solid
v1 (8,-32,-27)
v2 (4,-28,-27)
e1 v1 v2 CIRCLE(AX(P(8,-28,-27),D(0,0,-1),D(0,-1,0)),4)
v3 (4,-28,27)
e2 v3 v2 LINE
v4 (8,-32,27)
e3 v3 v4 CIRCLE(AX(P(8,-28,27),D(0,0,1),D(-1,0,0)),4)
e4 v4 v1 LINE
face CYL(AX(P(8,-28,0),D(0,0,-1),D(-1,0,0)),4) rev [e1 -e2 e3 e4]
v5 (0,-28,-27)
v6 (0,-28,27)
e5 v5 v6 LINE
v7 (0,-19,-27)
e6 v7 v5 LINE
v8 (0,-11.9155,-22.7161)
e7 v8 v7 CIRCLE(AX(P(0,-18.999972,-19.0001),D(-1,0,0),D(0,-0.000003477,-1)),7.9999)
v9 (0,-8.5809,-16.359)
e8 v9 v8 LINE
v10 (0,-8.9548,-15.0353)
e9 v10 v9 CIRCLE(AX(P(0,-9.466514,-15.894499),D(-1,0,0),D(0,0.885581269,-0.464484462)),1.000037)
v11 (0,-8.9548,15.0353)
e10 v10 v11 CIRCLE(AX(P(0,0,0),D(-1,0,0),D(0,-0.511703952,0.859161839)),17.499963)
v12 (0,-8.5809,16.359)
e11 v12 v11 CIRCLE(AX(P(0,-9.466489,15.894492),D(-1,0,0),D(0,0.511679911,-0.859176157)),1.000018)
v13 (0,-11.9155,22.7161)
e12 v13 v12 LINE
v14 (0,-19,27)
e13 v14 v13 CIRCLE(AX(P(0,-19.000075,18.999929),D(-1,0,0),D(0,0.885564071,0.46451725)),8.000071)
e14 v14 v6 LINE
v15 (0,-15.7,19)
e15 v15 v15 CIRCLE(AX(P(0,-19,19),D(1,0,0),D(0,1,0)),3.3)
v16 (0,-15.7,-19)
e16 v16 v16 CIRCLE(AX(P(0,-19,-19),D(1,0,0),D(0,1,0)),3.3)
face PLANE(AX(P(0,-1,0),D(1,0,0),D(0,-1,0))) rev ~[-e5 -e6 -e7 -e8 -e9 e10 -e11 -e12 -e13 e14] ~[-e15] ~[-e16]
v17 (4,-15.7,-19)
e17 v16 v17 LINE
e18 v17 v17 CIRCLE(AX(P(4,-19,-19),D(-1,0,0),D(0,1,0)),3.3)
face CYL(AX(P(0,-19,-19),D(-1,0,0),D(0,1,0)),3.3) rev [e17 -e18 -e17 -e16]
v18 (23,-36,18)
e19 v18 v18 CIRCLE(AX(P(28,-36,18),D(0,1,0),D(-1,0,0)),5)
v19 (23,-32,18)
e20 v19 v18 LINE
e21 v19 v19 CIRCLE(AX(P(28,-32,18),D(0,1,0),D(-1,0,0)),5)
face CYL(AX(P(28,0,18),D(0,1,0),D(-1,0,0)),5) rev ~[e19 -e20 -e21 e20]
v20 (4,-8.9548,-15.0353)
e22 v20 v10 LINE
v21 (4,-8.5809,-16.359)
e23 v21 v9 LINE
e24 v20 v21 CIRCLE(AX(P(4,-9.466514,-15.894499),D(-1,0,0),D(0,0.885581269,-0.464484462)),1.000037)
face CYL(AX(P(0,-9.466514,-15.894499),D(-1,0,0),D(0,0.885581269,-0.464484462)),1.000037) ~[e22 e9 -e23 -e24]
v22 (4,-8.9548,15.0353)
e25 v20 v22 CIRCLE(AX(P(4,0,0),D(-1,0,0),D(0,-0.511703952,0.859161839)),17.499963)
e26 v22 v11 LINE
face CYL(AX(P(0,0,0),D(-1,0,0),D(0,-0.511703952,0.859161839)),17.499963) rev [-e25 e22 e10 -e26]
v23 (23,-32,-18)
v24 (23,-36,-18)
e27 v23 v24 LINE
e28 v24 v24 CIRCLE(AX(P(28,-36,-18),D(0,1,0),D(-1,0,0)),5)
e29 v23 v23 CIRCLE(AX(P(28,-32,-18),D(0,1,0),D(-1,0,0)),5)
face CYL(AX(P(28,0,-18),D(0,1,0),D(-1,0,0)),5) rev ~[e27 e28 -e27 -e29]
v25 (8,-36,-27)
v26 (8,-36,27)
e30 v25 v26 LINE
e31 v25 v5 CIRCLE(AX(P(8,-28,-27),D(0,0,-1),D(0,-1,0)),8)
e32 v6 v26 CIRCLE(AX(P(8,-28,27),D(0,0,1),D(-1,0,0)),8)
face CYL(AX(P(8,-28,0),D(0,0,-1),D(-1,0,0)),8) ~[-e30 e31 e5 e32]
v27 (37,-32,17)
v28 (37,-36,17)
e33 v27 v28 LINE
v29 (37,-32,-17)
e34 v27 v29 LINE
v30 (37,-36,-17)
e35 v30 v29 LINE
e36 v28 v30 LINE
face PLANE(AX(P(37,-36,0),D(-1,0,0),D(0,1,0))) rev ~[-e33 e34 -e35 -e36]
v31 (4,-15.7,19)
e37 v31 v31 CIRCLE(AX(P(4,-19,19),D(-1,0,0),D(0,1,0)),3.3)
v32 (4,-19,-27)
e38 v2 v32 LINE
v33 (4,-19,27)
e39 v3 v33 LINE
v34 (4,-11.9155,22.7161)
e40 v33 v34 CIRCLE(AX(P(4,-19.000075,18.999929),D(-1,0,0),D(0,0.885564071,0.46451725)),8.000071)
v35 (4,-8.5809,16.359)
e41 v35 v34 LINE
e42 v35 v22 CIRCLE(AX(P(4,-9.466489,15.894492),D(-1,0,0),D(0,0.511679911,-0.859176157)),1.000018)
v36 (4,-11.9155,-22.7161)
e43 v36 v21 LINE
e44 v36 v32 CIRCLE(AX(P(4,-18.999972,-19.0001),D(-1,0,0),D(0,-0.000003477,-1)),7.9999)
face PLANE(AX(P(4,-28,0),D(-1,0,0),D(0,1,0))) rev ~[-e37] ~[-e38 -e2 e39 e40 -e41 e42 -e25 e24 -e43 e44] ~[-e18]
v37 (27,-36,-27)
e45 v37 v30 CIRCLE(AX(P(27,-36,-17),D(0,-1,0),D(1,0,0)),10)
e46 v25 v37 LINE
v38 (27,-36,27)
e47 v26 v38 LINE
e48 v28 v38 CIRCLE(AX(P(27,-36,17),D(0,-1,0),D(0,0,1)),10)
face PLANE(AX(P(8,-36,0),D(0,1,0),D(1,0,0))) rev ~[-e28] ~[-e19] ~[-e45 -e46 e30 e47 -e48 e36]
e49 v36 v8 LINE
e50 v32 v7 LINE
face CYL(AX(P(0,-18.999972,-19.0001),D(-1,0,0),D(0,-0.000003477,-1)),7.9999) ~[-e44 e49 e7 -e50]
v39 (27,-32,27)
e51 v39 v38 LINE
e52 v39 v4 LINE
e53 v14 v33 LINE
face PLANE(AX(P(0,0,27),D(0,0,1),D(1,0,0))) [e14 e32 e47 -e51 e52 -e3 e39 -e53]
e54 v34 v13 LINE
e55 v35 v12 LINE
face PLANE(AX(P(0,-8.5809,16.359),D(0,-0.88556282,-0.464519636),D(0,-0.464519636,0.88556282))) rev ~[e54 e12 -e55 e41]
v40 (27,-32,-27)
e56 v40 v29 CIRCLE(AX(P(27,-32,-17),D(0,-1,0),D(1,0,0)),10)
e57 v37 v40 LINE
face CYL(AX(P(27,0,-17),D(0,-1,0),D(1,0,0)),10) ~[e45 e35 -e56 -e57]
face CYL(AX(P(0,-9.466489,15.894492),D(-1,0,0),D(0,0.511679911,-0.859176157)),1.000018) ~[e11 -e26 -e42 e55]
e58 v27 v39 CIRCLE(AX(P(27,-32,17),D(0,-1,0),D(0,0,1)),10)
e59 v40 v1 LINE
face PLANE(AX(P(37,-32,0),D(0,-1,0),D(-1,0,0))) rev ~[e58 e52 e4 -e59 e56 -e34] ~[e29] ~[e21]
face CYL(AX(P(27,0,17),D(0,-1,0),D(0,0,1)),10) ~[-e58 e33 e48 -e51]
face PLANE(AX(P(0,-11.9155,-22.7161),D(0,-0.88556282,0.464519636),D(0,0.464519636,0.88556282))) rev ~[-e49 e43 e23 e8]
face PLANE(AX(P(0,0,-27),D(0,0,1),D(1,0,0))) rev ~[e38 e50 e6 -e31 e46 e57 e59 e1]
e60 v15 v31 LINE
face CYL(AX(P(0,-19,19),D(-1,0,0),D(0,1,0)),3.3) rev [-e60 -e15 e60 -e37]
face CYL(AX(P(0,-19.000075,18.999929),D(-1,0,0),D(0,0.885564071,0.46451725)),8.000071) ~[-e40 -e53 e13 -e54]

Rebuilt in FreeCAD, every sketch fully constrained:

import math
import FreeCAD as App
import Part
import Sketcher
from FreeCAD import Vector
Q = App.Units.Quantity

doc = App.newDocument("Part")
body = doc.addObject("PartDesign::Body", "Body")

# Sketch on XY plane
sketch1 = body.newObject("Sketcher::SketchObject", "Sketch")
sketch1.AttachmentSupport = (doc.getObject("XY_Plane"), [""])
sketch1.MapMode = "FlatFace"
sketch1.addGeometry(Part.LineSegment(Vector(4, -1, 0), Vector(0, -1, 0)), False)
sketch1.addGeometry(Part.LineSegment(Vector(0, -1, 0), Vector(0, -28, 0)), False)
sketch1.addGeometry(Part.ArcOfCircle(Part.Circle(Vector(8, -28, 0), Vector(0, 0, 1), 8), math.radians(180), math.radians(270)), False)
sketch1.addGeometry(Part.LineSegment(Vector(8, -36, 0), Vector(37, -36, 0)), False)
sketch1.addGeometry(Part.LineSegment(Vector(37, -36, 0), Vector(37, -32, 0)), False)
sketch1.addGeometry(Part.LineSegment(Vector(37, -32, 0), Vector(8, -32, 0)), False)
sketch1.addGeometry(Part.ArcOfCircle(Part.Circle(Vector(8, -28, 0), Vector(0, 0, 1), 4), math.radians(180), math.radians(270)), False)
sketch1.addGeometry(Part.LineSegment(Vector(4, -28, 0), Vector(4, -1, 0)), False)
sketch1.addConstraint(Sketcher.Constraint("Coincident", 0, 2, 1, 1))
sketch1.addConstraint(Sketcher.Constraint("Tangent", 1, 2, 2, 1))
sketch1.addConstraint(Sketcher.Constraint("Tangent", 2, 2, 3, 1))
sketch1.addConstraint(Sketcher.Constraint("Coincident", 3, 2, 4, 1))
sketch1.addConstraint(Sketcher.Constraint("Coincident", 4, 2, 5, 1))
sketch1.addConstraint(Sketcher.Constraint("Tangent", 5, 2, 6, 2))
sketch1.addConstraint(Sketcher.Constraint("Tangent", 6, 1, 7, 1))
sketch1.addConstraint(Sketcher.Constraint("Coincident", 7, 2, 0, 1))
sketch1.addConstraint(Sketcher.Constraint("Horizontal", 0))
sketch1.addConstraint(Sketcher.Constraint("Vertical", 1))
sketch1.addConstraint(Sketcher.Constraint("Horizontal", 3))
sketch1.addConstraint(Sketcher.Constraint("Vertical", 4))
sketch1.addConstraint(Sketcher.Constraint("Horizontal", 5))
sketch1.addConstraint(Sketcher.Constraint("Vertical", 7))
sketch1.addConstraint(Sketcher.Constraint("Coincident", 6, 3, 2, 3))
sketch1.addConstraint(Sketcher.Constraint("PointOnObject", 0, 2, -2))
sketch1.addConstraint(Sketcher.Constraint("Radius", 2, 8.0))
sketch1.addConstraint(Sketcher.Constraint("Radius", 6, 4.0))
sketch1.addConstraint(Sketcher.Constraint("DistanceX", 3, 1, 3, 2, 29.0))
sketch1.addConstraint(Sketcher.Constraint("DistanceY", 1, 2, 1, 1, 27.0))
sketch1.addConstraint(Sketcher.Constraint("DistanceY", 2, 3, -1, 1, 28.0))
pad1 = body.newObject("PartDesign::Pad", "Pad")
pad1.Profile = sketch1
pad1.Length = 54
pad1.Midplane = True

# Sketch on XZ plane
sketch2 = body.newObject("Sketcher::SketchObject", "Sketch001")
sketch2.AttachmentSupport = (doc.getObject("XZ_Plane"), [""])
sketch2.MapMode = "FlatFace"
sketch2.addGeometry(Part.LineSegment(Vector(47, -37, 0), Vector(27, -37, 0)), False)
sketch2.addGeometry(Part.LineSegment(Vector(27, -37, 0), Vector(27, -27, 0)), False)
sketch2.addGeometry(Part.ArcOfCircle(Part.Circle(Vector(27, -17, 0), Vector(0, 0, 1), 10), math.radians(-90), math.radians(0)), False)
sketch2.addGeometry(Part.LineSegment(Vector(37, -17, 0), Vector(37, 17, 0)), False)
sketch2.addGeometry(Part.ArcOfCircle(Part.Circle(Vector(27, 17, 0), Vector(0, 0, 1), 10), math.radians(0), math.radians(90)), False)
sketch2.addGeometry(Part.LineSegment(Vector(27, 27, 0), Vector(27, 37, 0)), False)
sketch2.addGeometry(Part.LineSegment(Vector(27, 37, 0), Vector(47, 37, 0)), False)
sketch2.addGeometry(Part.LineSegment(Vector(47, 37, 0), Vector(47, -37, 0)), False)
sketch2.addConstraint(Sketcher.Constraint("Coincident", 0, 2, 1, 1))
sketch2.addConstraint(Sketcher.Constraint("Coincident", 1, 2, 2, 1))
sketch2.addConstraint(Sketcher.Constraint("Tangent", 2, 2, 3, 1))
sketch2.addConstraint(Sketcher.Constraint("Tangent", 3, 2, 4, 1))
sketch2.addConstraint(Sketcher.Constraint("Coincident", 4, 2, 5, 1))
sketch2.addConstraint(Sketcher.Constraint("Coincident", 5, 2, 6, 1))
sketch2.addConstraint(Sketcher.Constraint("Coincident", 6, 2, 7, 1))
sketch2.addConstraint(Sketcher.Constraint("Coincident", 7, 2, 0, 1))
sketch2.addConstraint(Sketcher.Constraint("Horizontal", 0))
sketch2.addConstraint(Sketcher.Constraint("Vertical", 1))
sketch2.addConstraint(Sketcher.Constraint("Vertical", 3))
sketch2.addConstraint(Sketcher.Constraint("Vertical", 5))
sketch2.addConstraint(Sketcher.Constraint("Horizontal", 6))
sketch2.addConstraint(Sketcher.Constraint("Vertical", 7))
sketch2.addConstraint(Sketcher.Constraint("Equal", 2, 4))
sketch2.addConstraint(Sketcher.Constraint("Symmetric", 1, 2, 4, 2, -1))
sketch2.addConstraint(Sketcher.Constraint("Vertical", 4, 3, 0, 2))
sketch2.addConstraint(Sketcher.Constraint("Equal", 1, 5))
sketch2.addConstraint(Sketcher.Constraint("Radius", 2, 10.0))
sketch2.addConstraint(Sketcher.Constraint("DistanceX", 0, 2, 0, 1, 20.0))
sketch2.addConstraint(Sketcher.Constraint("DistanceY", 1, 1, 1, 2, 10.0))
sketch2.addConstraint(Sketcher.Constraint("DistanceY", 3, 1, 3, 2, 34.0))
sketch2.addConstraint(Sketcher.Constraint("DistanceX", -1, 1, 2, 3, 27.0))
pocket1 = body.newObject("PartDesign::Pocket", "Pocket")
pocket1.Profile = sketch2
pocket1.Length = 74
pocket1.Midplane = True

# Sketch on XZ plane
sketch3 = body.newObject("Sketcher::SketchObject", "Sketch002")
sketch3.AttachmentSupport = (doc.getObject("XZ_Plane"), [""])
sketch3.MapMode = "FlatFace"
sketch3.addGeometry(Part.Circle(Vector(28, -18, 0), Vector(0, 0, 1), 5), False)
sketch3.addConstraint(Sketcher.Constraint("Diameter", 0, 10.0))
sketch3.addConstraint(Sketcher.Constraint("DistanceX", -1, 1, 0, 3, 28.0))
sketch3.addConstraint(Sketcher.Constraint("DistanceY", 0, 3, -1, 1, 18.0))
pocket2 = body.newObject("PartDesign::Pocket", "Pocket001")
pocket2.Profile = sketch3
pocket2.Length = 74
pocket2.Midplane = True

# Sketch on XZ plane
sketch4 = body.newObject("Sketcher::SketchObject", "Sketch003")
sketch4.AttachmentSupport = (doc.getObject("XZ_Plane"), [""])
sketch4.MapMode = "FlatFace"
sketch4.addGeometry(Part.Circle(Vector(28, 18, 0), Vector(0, 0, 1), 5), False)
sketch4.addConstraint(Sketcher.Constraint("Diameter", 0, 10.0))
sketch4.addConstraint(Sketcher.Constraint("DistanceX", -1, 1, 0, 3, 28.0))
sketch4.addConstraint(Sketcher.Constraint("DistanceY", -1, 1, 0, 3, 18.0))
pocket3 = body.newObject("PartDesign::Pocket", "Pocket002")
pocket3.Profile = sketch4
pocket3.Length = 74
pocket3.Midplane = True

# Sketch on YZ plane
sketch5 = body.newObject("Sketcher::SketchObject", "Sketch004")
sketch5.AttachmentSupport = (doc.getObject("YZ_Plane"), [""])
sketch5.MapMode = "FlatFace"
sketch5.addGeometry(Part.Circle(Vector(-19, 19, 0), Vector(0, 0, 1), 3.3), False)
sketch5.addConstraint(Sketcher.Constraint("Diameter", 0, 6.6))
sketch5.addConstraint(Sketcher.Constraint("DistanceX", 0, 3, -1, 1, 19.0))
sketch5.addConstraint(Sketcher.Constraint("DistanceY", -1, 1, 0, 3, 19.0))
pocket4 = body.newObject("PartDesign::Pocket", "Pocket003")
pocket4.Profile = sketch5
pocket4.Length = 10
pocket4.Midplane = True

# Sketch on YZ plane
sketch6 = body.newObject("Sketcher::SketchObject", "Sketch005")
sketch6.AttachmentSupport = (doc.getObject("YZ_Plane"), [""])
sketch6.MapMode = "FlatFace"
sketch6.addGeometry(Part.Circle(Vector(-19, -19, 0), Vector(0, 0, 1), 3.3), False)
sketch6.addConstraint(Sketcher.Constraint("Diameter", 0, 6.6))
sketch6.addConstraint(Sketcher.Constraint("DistanceX", 0, 3, -1, 1, 19.0))
sketch6.addConstraint(Sketcher.Constraint("DistanceY", 0, 3, -1, 1, 19.0))
pocket5 = body.newObject("PartDesign::Pocket", "Pocket004")
pocket5.Profile = sketch6
pocket5.Length = 10
pocket5.Midplane = True

# Sketch on YZ plane
sketch7 = body.newObject("Sketcher::SketchObject", "Sketch006")
sketch7.AttachmentSupport = (doc.getObject("YZ_Plane"), [""])
sketch7.MapMode = "FlatFace"
sketch7.addGeometry(Part.LineSegment(Vector(0, 32, 0), Vector(-41, 32, 0)), False)
sketch7.addGeometry(Part.LineSegment(Vector(-41, 32, 0), Vector(-41, -32, 0)), False)
sketch7.addGeometry(Part.LineSegment(Vector(-41, -32, 0), Vector(0, -32, 0)), False)
sketch7.addGeometry(Part.LineSegment(Vector(0, -32, 0), Vector(0, 32, 0)), False)
sketch7.addGeometry(Part.LineSegment(Vector(-36, 27, 0), Vector(-19, 27, 0)), False)
sketch7.addGeometry(Part.ArcOfCircle(Part.Circle(Vector(-19, 19, 0), Vector(0, 0, 1), 7.999971), math.radians(27.678785), math.radians(90)), False)
sketch7.addGeometry(Part.LineSegment(Vector(-11.9155, 22.7161, 0), Vector(-8.5809, 16.359, 0)), False)
sketch7.addGeometry(Part.ArcOfCircle(Part.Circle(Vector(-9.4665, 15.8945, 0), Vector(0, 0, 1), 1.000031), math.radians(-59.223917), math.radians(27.677152)), False)
sketch7.addGeometry(Part.ArcOfCircle(Part.Circle(Vector(0, 0, 0), Vector(0, 0, 1), 17.499963), math.radians(120.777396), math.radians(239.222604)), False)
sketch7.addGeometry(Part.ArcOfCircle(Part.Circle(Vector(-9.4665, -15.8945, 0), Vector(0, 0, 1), 1.000024), math.radians(-27.677152), math.radians(59.223917)), False)
sketch7.addGeometry(Part.LineSegment(Vector(-8.5809, -16.359, 0), Vector(-11.9155, -22.7161, 0)), False)
sketch7.addGeometry(Part.ArcOfCircle(Part.Circle(Vector(-19, -19, 0), Vector(0, 0, 1), 8), math.radians(-90), math.radians(-27.678785)), False)
sketch7.addGeometry(Part.LineSegment(Vector(-19, -27, 0), Vector(-36, -27, 0)), False)
sketch7.addGeometry(Part.LineSegment(Vector(-36, -27, 0), Vector(-36, 27, 0)), False)
sketch7.addConstraint(Sketcher.Constraint("Coincident", 0, 2, 1, 1))
sketch7.addConstraint(Sketcher.Constraint("Coincident", 1, 2, 2, 1))
sketch7.addConstraint(Sketcher.Constraint("Coincident", 2, 2, 3, 1))
sketch7.addConstraint(Sketcher.Constraint("Coincident", 3, 2, 0, 1))
sketch7.addConstraint(Sketcher.Constraint("Tangent", 4, 2, 5, 2))
sketch7.addConstraint(Sketcher.Constraint("Tangent", 5, 1, 6, 1))
sketch7.addConstraint(Sketcher.Constraint("Tangent", 6, 2, 7, 2))
sketch7.addConstraint(Sketcher.Constraint("Tangent", 7, 1, 8, 1))
sketch7.addConstraint(Sketcher.Constraint("Tangent", 8, 2, 9, 2))
sketch7.addConstraint(Sketcher.Constraint("Tangent", 9, 1, 10, 1))
sketch7.addConstraint(Sketcher.Constraint("Tangent", 10, 2, 11, 2))
sketch7.addConstraint(Sketcher.Constraint("Tangent", 11, 1, 12, 1))
sketch7.addConstraint(Sketcher.Constraint("Coincident", 12, 2, 13, 1))
sketch7.addConstraint(Sketcher.Constraint("Coincident", 13, 2, 4, 1))
sketch7.addConstraint(Sketcher.Constraint("Horizontal", 0))
sketch7.addConstraint(Sketcher.Constraint("Vertical", 1))
sketch7.addConstraint(Sketcher.Constraint("Horizontal", 2))
sketch7.addConstraint(Sketcher.Constraint("Vertical", 3))
sketch7.addConstraint(Sketcher.Constraint("Horizontal", 4))
sketch7.addConstraint(Sketcher.Constraint("Horizontal", 12))
sketch7.addConstraint(Sketcher.Constraint("Vertical", 13))
sketch7.addConstraint(Sketcher.Constraint("Coincident", 8, 3, -1, 1))
sketch7.addConstraint(Sketcher.Constraint("Equal", 7, 9))
sketch7.addConstraint(Sketcher.Constraint("Equal", 5, 11))
sketch7.addConstraint(Sketcher.Constraint("Symmetric", 2, 2, 3, 2, -1, 1))
sketch7.addConstraint(Sketcher.Constraint("Symmetric", 5, 3, 11, 3, -1))
sketch7.addConstraint(Sketcher.Constraint("Vertical", 7, 3, 9, 3))
sketch7.addConstraint(Sketcher.Constraint("Radius", 5, 8.0))
sketch7.addConstraint(Sketcher.Constraint("Radius", 7, 1.0))
sketch7.addConstraint(Sketcher.Constraint("Radius", 8, 17.5))
sketch7.addConstraint(Sketcher.Constraint("DistanceX", 0, 2, 0, 1, 41.0))
sketch7.addConstraint(Sketcher.Constraint("DistanceX", 4, 1, 4, 2, 17.0))
sketch7.addConstraint(Sketcher.Constraint("DistanceY", 1, 2, 1, 1, 64.0))
sketch7.addConstraint(Sketcher.Constraint("DistanceY", 13, 1, 13, 2, 54.0))
sketch7.addConstraint(Sketcher.Constraint("DistanceX", 5, 3, -1, 1, 19.0))
sketch7.addConstraint(Sketcher.Constraint("Angle", 6, Q("-62.3209 deg")))
pocket6 = body.newObject("PartDesign::Pocket", "Pocket005")
pocket6.Profile = sketch7
pocket6.Length = 10
pocket6.Midplane = True

doc.recompute()
